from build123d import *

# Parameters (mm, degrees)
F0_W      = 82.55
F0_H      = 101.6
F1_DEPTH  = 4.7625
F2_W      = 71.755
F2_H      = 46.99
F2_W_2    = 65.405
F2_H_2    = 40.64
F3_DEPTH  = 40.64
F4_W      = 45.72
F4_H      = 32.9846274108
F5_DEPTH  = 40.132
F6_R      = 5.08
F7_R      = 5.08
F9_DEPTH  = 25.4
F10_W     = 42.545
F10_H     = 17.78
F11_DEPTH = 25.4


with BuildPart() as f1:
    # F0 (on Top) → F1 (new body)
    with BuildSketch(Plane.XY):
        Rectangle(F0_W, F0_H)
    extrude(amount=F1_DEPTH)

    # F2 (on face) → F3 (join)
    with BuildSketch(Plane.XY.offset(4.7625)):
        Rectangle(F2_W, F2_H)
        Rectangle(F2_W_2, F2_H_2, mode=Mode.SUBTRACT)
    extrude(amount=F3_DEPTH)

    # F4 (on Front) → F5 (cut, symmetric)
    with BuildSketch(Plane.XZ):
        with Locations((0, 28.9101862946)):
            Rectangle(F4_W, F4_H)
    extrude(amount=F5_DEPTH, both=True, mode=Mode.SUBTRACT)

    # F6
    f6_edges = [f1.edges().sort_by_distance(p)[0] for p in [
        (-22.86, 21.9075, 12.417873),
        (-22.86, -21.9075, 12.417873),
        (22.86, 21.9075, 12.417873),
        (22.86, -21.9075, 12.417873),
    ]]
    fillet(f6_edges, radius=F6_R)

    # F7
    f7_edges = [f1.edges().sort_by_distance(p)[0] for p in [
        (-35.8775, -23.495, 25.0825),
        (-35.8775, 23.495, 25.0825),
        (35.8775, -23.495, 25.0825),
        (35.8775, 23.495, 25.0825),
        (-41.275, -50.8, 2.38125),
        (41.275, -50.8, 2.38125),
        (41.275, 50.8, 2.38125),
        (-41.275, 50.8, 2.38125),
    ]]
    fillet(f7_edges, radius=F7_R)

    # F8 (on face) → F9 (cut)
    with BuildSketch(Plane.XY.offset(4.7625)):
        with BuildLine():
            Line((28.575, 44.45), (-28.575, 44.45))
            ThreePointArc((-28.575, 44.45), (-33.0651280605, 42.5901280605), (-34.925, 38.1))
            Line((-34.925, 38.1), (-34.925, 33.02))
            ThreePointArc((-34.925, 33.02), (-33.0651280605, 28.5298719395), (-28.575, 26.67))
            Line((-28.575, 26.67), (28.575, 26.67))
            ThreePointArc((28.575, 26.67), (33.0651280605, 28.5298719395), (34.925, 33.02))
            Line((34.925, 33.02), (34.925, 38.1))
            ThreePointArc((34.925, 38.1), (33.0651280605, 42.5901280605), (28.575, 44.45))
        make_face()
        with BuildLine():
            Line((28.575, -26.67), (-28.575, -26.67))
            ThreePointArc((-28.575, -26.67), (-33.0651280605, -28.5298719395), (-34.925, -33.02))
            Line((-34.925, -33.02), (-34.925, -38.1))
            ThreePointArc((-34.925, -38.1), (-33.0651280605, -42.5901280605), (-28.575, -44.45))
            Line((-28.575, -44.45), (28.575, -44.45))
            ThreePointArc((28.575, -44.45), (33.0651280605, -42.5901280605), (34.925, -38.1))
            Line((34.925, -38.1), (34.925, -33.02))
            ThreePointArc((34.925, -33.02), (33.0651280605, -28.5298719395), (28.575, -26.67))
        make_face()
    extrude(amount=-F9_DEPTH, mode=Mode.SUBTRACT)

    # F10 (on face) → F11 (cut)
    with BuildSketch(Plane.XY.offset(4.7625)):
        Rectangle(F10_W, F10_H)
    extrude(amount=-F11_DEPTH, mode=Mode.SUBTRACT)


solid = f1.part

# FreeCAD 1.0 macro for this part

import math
import FreeCAD as App
import Part
import Sketcher
Q = App.Units.Quantity


def edges_at(feature, points):
    """Names of the edges that pass closest to the given points."""
    edges = feature.Shape.Edges
    near = lambda p: min(range(len(edges)), key=lambda i: edges[i].distToShape(Part.Vertex(*p))[0])
    return sorted({f"Edge{near(p) + 1}" for p in points})

doc = App.newDocument("Part")
body = doc.addObject("PartDesign::Body", "Body")

sketch1 = body.newObject("Sketcher::SketchObject", "Sketch")
sketch1.AttachmentSupport = (doc.getObject("XY_Plane"), [""])
sketch1.MapMode = "FlatFace"
sketch1.addGeometry([
    Part.LineSegment(App.Vector(-41, 51, 0), App.Vector(-41, -51, 0)),
    Part.LineSegment(App.Vector(-41, -51, 0), App.Vector(41, -51, 0)),
    Part.LineSegment(App.Vector(41, -51, 0), App.Vector(41, 51, 0)),
    Part.LineSegment(App.Vector(41, 51, 0), App.Vector(-41, 51, 0)),
], False)
sketch1.addConstraint([
    Sketcher.Constraint("Coincident", 0, 2, 1, 1),
    Sketcher.Constraint("Coincident", 1, 2, 2, 1),
    Sketcher.Constraint("Coincident", 2, 2, 3, 1),
    Sketcher.Constraint("Coincident", 3, 2, 0, 1),
    Sketcher.Constraint("Vertical", 0),
    Sketcher.Constraint("Horizontal", 1),
    Sketcher.Constraint("Vertical", 2),
    Sketcher.Constraint("Horizontal", 3),
    Sketcher.Constraint("Symmetric", 0, 2, 2, 2, -1, 1),
    Sketcher.Constraint("DistanceY", 0, 2, 0, 1, Q("4 in")),
    Sketcher.Constraint("DistanceX", 1, 1, 1, 2, Q("3.25 in")),
])
pad1 = body.newObject("PartDesign::Pad", "Pad")
pad1.Profile = sketch1
pad1.Length = Q("0.1875 in")

sketch2 = body.newObject("Sketcher::SketchObject", "Sketch001")
sketch2.AttachmentSupport = (doc.getObject("XY_Plane"), [""])
sketch2.MapMode = "FlatFace"
sketch2.AttachmentOffset = App.Placement(App.Vector(0, 0, 0.1875 * 25.4), App.Rotation())
sketch2.addGeometry([
    Part.LineSegment(App.Vector(-36, 23, 0), App.Vector(-36, -23, 0)),
    Part.LineSegment(App.Vector(-36, -23, 0), App.Vector(36, -23, 0)),
    Part.LineSegment(App.Vector(36, -23, 0), App.Vector(36, 23, 0)),
    Part.LineSegment(App.Vector(36, 23, 0), App.Vector(-36, 23, 0)),
    Part.LineSegment(App.Vector(33, -20, 0), App.Vector(-33, -20, 0)),
    Part.LineSegment(App.Vector(-33, -20, 0), App.Vector(-33, 20, 0)),
    Part.LineSegment(App.Vector(-33, 20, 0), App.Vector(33, 20, 0)),
    Part.LineSegment(App.Vector(33, 20, 0), App.Vector(33, -20, 0)),
], False)
sketch2.addConstraint([
    Sketcher.Constraint("Coincident", 0, 2, 1, 1),
    Sketcher.Constraint("Coincident", 1, 2, 2, 1),
    Sketcher.Constraint("Coincident", 2, 2, 3, 1),
    Sketcher.Constraint("Coincident", 3, 2, 0, 1),
    Sketcher.Constraint("Coincident", 4, 2, 5, 1),
    Sketcher.Constraint("Coincident", 5, 2, 6, 1),
    Sketcher.Constraint("Coincident", 6, 2, 7, 1),
    Sketcher.Constraint("Coincident", 7, 2, 4, 1),
    Sketcher.Constraint("Vertical", 0),
    Sketcher.Constraint("Horizontal", 1),
    Sketcher.Constraint("Vertical", 2),
    Sketcher.Constraint("Horizontal", 3),
    Sketcher.Constraint("Horizontal", 4),
    Sketcher.Constraint("Vertical", 5),
    Sketcher.Constraint("Horizontal", 6),
    Sketcher.Constraint("Vertical", 7),
    Sketcher.Constraint("Symmetric", 0, 2, 2, 2, -1, 1),
    Sketcher.Constraint("Symmetric", 4, 2, 6, 2, -1, 1),
    Sketcher.Constraint("DistanceY", 5, 1, 5, 2, Q("1.6 in")),
    Sketcher.Constraint("DistanceY", 0, 2, 0, 1, Q("1.85 in")),
    Sketcher.Constraint("DistanceX", 4, 2, 1, 2, Q("2.7 in")),
    Sketcher.Constraint("DistanceX", 1, 1, 1, 2, Q("2.825 in")),
])
pad2 = body.newObject("PartDesign::Pad", "Pad001")
pad2.Profile = sketch2
pad2.Length = Q("1.6 in")

sketch3 = body.newObject("Sketcher::SketchObject", "Sketch002")
sketch3.AttachmentSupport = (doc.getObject("XZ_Plane"), [""])
sketch3.MapMode = "FlatFace"
sketch3.addGeometry([
    Part.LineSegment(App.Vector(-23, 45, 0), App.Vector(-23, 12, 0)),
    Part.LineSegment(App.Vector(-23, 12, 0), App.Vector(23, 12, 0)),
    Part.LineSegment(App.Vector(23, 12, 0), App.Vector(23, 45, 0)),
    Part.LineSegment(App.Vector(23, 45, 0), App.Vector(-23, 45, 0)),
], False)
sketch3.addConstraint([
    Sketcher.Constraint("Coincident", 0, 2, 1, 1),
    Sketcher.Constraint("Coincident", 1, 2, 2, 1),
    Sketcher.Constraint("Coincident", 2, 2, 3, 1),
    Sketcher.Constraint("Coincident", 3, 2, 0, 1),
    Sketcher.Constraint("Vertical", 0),
    Sketcher.Constraint("Horizontal", 1),
    Sketcher.Constraint("Vertical", 2),
    Sketcher.Constraint("Horizontal", 3),
    Sketcher.Constraint("DistanceX", 1, 1, 1, 2, Q("1.8 in")),
    Sketcher.Constraint("DistanceX", 0, 2, -1, 1, Q("0.9 in")),
    Sketcher.Constraint("DistanceY", -1, 1, 2, 2, Q("1.7875 in")),
    Sketcher.Constraint("DistanceY", 0, 2, 0, 1, Q("32.984627 mm")),
])
pocket1 = body.newObject("PartDesign::Pocket", "Pocket")
pocket1.Profile = sketch3
pocket1.Length = Q("3.16 in")
pocket1.Midplane = True
doc.recompute()

fillet = body.newObject("PartDesign::Fillet", "Fillet")
fillet.Base = (pocket1, edges_at(pocket1, [
    (-22.86, 21.907, 12.418),
    (-22.86, -21.907, 12.418),
    (22.86, 21.907, 12.418),
    (22.86, -21.907, 12.418),
]))
fillet.Radius = Q("0.2 in")
doc.recompute()

fillet2 = body.newObject("PartDesign::Fillet", "Fillet001")
fillet2.Base = (fillet, edges_at(fillet, [
    (-35.877, -23.495, 25.082),
    (-35.877, 23.495, 25.082),
    (35.877, -23.495, 25.082),
    (35.877, 23.495, 25.082),
    (-41.275, -50.8, 2.381),
    (41.275, -50.8, 2.381),
    (41.275, 50.8, 2.381),
    (-41.275, 50.8, 2.381),
]))
fillet2.Radius = Q("0.2 in")

sketch4 = body.newObject("Sketcher::SketchObject", "Sketch003")
sketch4.AttachmentSupport = (doc.getObject("XY_Plane"), [""])
sketch4.MapMode = "FlatFace"
sketch4.AttachmentOffset = App.Placement(App.Vector(0, 0, 0.1875 * 25.4), App.Rotation())
sketch4.addGeometry([
    Part.LineSegment(App.Vector(29, 44, 0), App.Vector(-29, 44, 0)),
    Part.ArcOfCircle(Part.Circle(App.Vector(-29, 38, 0), App.Vector(0, 0, 1), 6), math.radians(90), math.radians(180)),
    Part.LineSegment(App.Vector(-35, 38, 0), App.Vector(-35, 33, 0)),
    Part.ArcOfCircle(Part.Circle(App.Vector(-29, 33, 0), App.Vector(0, 0, 1), 6), math.radians(180), math.radians(270)),
    Part.LineSegment(App.Vector(-29, 27, 0), App.Vector(29, 27, 0)),
    Part.ArcOfCircle(Part.Circle(App.Vector(29, 33, 0), App.Vector(0, 0, 1), 6), math.radians(-90), math.radians(0)),
    Part.LineSegment(App.Vector(35, 33, 0), App.Vector(35, 38, 0)),
    Part.ArcOfCircle(Part.Circle(App.Vector(29, 38, 0), App.Vector(0, 0, 1), 6), math.radians(0), math.radians(90)),
    Part.LineSegment(App.Vector(29, -27, 0), App.Vector(-29, -27, 0)),
    Part.ArcOfCircle(Part.Circle(App.Vector(-29, -33, 0), App.Vector(0, 0, 1), 6), math.radians(90), math.radians(180)),
    Part.LineSegment(App.Vector(-35, -33, 0), App.Vector(-35, -38, 0)),
    Part.ArcOfCircle(Part.Circle(App.Vector(-29, -38, 0), App.Vector(0, 0, 1), 6), math.radians(180), math.radians(270)),
    Part.LineSegment(App.Vector(-29, -44, 0), App.Vector(29, -44, 0)),
    Part.ArcOfCircle(Part.Circle(App.Vector(29, -38, 0), App.Vector(0, 0, 1), 6), math.radians(-90), math.radians(0)),
    Part.LineSegment(App.Vector(35, -38, 0), App.Vector(35, -33, 0)),
    Part.ArcOfCircle(Part.Circle(App.Vector(29, -33, 0), App.Vector(0, 0, 1), 6), math.radians(0), math.radians(90)),
], False)
sketch4.addConstraint([
    Sketcher.Constraint("Tangent", 0, 2, 1, 1),
    Sketcher.Constraint("Tangent", 1, 2, 2, 1),
    Sketcher.Constraint("Tangent", 2, 2, 3, 1),
    Sketcher.Constraint("Tangent", 3, 2, 4, 1),
    Sketcher.Constraint("Tangent", 4, 2, 5, 1),
    Sketcher.Constraint("Tangent", 5, 2, 6, 1),
    Sketcher.Constraint("Tangent", 6, 2, 7, 1),
    Sketcher.Constraint("Tangent", 7, 2, 0, 1),
    Sketcher.Constraint("Tangent", 8, 2, 9, 1),
    Sketcher.Constraint("Tangent", 9, 2, 10, 1),
    Sketcher.Constraint("Tangent", 10, 2, 11, 1),
    Sketcher.Constraint("Tangent", 11, 2, 12, 1),
    Sketcher.Constraint("Tangent", 12, 2, 13, 1),
    Sketcher.Constraint("Tangent", 13, 2, 14, 1),
    Sketcher.Constraint("Tangent", 14, 2, 15, 1),
    Sketcher.Constraint("Tangent", 15, 2, 8, 1),
    Sketcher.Constraint("Horizontal", 0),
    Sketcher.Constraint("Vertical", 2),
    Sketcher.Constraint("Horizontal", 4),
    Sketcher.Constraint("Vertical", 6),
    Sketcher.Constraint("Horizontal", 8),
    Sketcher.Constraint("Vertical", 10),
    Sketcher.Constraint("Horizontal", 12),
    Sketcher.Constraint("Vertical", 14),
    Sketcher.Constraint("Equal", 1, 3),
    Sketcher.Constraint("Equal", 3, 5),
    Sketcher.Constraint("Equal", 5, 7),
    Sketcher.Constraint("Equal", 7, 9),
    Sketcher.Constraint("Equal", 9, 11),
    Sketcher.Constraint("Equal", 11, 13),
    Sketcher.Constraint("Equal", 13, 15),
    Sketcher.Constraint("Symmetric", 5, 3, 9, 3, -1, 1),
    Sketcher.Constraint("Symmetric", 1, 3, 13, 3, -1, 1),
    Sketcher.Constraint("Vertical", 3, 3, 9, 3),
    Sketcher.Constraint("Radius", 1, Q("0.25 in")),
    Sketcher.Constraint("DistanceY", 2, 2, 2, 1, Q("0.2 in")),
    Sketcher.Constraint("DistanceY", 11, 3, 1, 3, Q("3 in")),
    Sketcher.Constraint("DistanceX", 0, 2, 0, 1, Q("2.25 in")),
])
pocket2 = body.newObject("PartDesign::Pocket", "Pocket001")
pocket2.Profile = sketch4
pocket2.Length = Q("1 in")

sketch5 = body.newObject("Sketcher::SketchObject", "Sketch004")
sketch5.AttachmentSupport = (doc.getObject("XY_Plane"), [""])
sketch5.MapMode = "FlatFace"
sketch5.AttachmentOffset = App.Placement(App.Vector(0, 0, 0.1875 * 25.4), App.Rotation())
sketch5.addGeometry([
    Part.LineSegment(App.Vector(-21, 9, 0), App.Vector(-21, -9, 0)),
    Part.LineSegment(App.Vector(-21, -9, 0), App.Vector(21, -9, 0)),
    Part.LineSegment(App.Vector(21, -9, 0), App.Vector(21, 9, 0)),
    Part.LineSegment(App.Vector(21, 9, 0), App.Vector(-21, 9, 0)),
], False)
sketch5.addConstraint([
    Sketcher.Constraint("Coincident", 0, 2, 1, 1),
    Sketcher.Constraint("Coincident", 1, 2, 2, 1),
    Sketcher.Constraint("Coincident", 2, 2, 3, 1),
    Sketcher.Constraint("Coincident", 3, 2, 0, 1),
    Sketcher.Constraint("Vertical", 0),
    Sketcher.Constraint("Horizontal", 1),
    Sketcher.Constraint("Vertical", 2),
    Sketcher.Constraint("Horizontal", 3),
    Sketcher.Constraint("Symmetric", 0, 2, 2, 2, -1, 1),
    Sketcher.Constraint("DistanceY", 0, 2, 0, 1, Q("0.7 in")),
    Sketcher.Constraint("DistanceX", 1, 1, 1, 2, Q("1.675 in")),
])
pocket3 = body.newObject("PartDesign::Pocket", "Pocket002")
pocket3.Profile = sketch5
pocket3.Length = Q("1 in")

doc.recompute()
